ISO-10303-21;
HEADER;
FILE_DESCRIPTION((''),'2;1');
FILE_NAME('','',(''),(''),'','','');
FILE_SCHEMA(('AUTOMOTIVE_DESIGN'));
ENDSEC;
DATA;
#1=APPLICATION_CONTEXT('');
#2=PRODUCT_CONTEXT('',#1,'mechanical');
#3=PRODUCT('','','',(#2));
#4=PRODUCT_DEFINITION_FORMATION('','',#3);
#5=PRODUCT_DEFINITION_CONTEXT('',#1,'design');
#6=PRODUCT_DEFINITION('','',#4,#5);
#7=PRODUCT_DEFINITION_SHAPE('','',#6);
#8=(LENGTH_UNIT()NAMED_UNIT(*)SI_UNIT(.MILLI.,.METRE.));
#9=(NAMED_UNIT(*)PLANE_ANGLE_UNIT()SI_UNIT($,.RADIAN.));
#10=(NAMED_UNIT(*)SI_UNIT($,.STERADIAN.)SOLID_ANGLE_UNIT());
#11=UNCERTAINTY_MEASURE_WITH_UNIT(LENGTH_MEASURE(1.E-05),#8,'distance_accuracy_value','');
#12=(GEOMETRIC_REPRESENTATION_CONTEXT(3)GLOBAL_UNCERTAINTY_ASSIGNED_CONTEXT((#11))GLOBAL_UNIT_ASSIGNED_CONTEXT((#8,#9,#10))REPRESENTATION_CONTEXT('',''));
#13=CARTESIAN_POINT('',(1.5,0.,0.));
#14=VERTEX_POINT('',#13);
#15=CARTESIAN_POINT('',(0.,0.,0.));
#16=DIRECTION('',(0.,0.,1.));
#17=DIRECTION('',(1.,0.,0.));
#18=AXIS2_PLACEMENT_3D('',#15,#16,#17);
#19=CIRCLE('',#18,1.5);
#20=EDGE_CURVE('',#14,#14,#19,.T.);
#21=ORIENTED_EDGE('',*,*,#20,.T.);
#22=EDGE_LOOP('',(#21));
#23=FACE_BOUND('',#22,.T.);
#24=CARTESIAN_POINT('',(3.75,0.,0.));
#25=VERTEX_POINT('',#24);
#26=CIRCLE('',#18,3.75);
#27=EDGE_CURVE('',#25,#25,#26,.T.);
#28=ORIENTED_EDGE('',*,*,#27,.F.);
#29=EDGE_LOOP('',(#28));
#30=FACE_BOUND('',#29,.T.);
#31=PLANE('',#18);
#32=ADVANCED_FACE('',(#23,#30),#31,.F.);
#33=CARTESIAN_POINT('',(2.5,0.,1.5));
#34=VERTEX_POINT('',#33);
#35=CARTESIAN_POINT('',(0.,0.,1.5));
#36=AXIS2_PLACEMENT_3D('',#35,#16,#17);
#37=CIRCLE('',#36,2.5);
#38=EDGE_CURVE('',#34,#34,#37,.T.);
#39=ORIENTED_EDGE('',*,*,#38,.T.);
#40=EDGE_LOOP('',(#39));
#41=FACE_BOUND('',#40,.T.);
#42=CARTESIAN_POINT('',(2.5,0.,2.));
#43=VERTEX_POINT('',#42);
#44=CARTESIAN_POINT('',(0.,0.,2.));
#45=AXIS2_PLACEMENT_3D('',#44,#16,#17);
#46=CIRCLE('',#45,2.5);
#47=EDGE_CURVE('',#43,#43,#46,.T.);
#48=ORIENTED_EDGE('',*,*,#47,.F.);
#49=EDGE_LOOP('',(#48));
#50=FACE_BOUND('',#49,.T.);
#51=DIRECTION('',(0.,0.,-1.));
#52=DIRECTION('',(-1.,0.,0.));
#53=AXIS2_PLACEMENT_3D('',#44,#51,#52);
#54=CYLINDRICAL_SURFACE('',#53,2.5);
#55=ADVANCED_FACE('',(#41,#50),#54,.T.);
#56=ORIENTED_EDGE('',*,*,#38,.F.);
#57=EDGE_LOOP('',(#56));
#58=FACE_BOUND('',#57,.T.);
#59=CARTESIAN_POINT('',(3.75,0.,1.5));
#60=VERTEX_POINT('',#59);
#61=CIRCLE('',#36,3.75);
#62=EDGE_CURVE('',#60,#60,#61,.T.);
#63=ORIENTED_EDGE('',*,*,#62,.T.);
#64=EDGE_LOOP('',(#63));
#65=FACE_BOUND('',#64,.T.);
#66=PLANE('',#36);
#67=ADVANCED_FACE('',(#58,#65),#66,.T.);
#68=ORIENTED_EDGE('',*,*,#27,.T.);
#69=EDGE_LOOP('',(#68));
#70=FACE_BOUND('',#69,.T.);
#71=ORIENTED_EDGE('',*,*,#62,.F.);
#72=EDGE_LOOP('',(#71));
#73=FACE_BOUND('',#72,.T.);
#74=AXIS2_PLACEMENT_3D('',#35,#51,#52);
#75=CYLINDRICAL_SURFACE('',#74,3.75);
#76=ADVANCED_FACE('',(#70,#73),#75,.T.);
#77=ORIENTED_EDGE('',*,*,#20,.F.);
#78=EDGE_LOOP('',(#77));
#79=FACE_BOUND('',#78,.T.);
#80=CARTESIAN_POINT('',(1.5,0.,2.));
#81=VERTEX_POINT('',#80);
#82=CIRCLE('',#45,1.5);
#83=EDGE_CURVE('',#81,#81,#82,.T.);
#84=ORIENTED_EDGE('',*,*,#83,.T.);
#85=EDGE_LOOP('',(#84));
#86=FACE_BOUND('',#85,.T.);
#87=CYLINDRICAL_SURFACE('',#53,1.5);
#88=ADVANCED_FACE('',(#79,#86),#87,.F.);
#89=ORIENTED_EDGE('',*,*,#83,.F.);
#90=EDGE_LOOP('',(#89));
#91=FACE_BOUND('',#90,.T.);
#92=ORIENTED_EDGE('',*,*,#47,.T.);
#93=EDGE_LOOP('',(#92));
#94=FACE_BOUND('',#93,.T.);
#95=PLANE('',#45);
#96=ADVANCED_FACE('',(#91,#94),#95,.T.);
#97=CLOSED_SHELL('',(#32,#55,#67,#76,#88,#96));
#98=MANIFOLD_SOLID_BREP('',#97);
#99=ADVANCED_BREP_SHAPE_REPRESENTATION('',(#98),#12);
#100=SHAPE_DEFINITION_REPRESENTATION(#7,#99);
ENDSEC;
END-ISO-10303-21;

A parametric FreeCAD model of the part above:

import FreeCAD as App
import Part
import Sketcher

V = App.Vector
Q = App.Units.Quantity

doc = App.newDocument("Part")
params = doc.addObject("Spreadsheet::Sheet", "Params")
for row, (alias, value) in enumerate([
    ("sketch1_diameter", "5 mm"),
    ("sketch1_diameter2", "7.5 mm"),
    ("pad1_length", "1.5 mm"),
    ("sketch2_diameter", "5 mm"),
    ("sketch2_diameter2", "3 mm"),
    ("pad2_length", "2 mm"),
], start=1):
    params.set(f"A{row}", alias)
    params.set(f"B{row}", "=" + value)
    params.setAlias(f"B{row}", alias)

body = doc.addObject("PartDesign::Body", "Body")

# Sketch on XY plane
sketch1 = body.newObject("Sketcher::SketchObject", "Sketch")
sketch1.AttachmentSupport = (doc.getObject("XY_Plane"), [""])
sketch1.MapMode = "FlatFace"
sketch1.addGeometry([
    Part.Circle(V(0, 0, 0), V(0, 0, 1), 3.75),
    Part.Circle(V(0, 0, 0), V(0, 0, 1), 2.5),
], False)
sketch1.addConstraint([
    Sketcher.Constraint("Coincident", 0, 3, -1, 1),
    Sketcher.Constraint("Coincident", 1, 3, -1, 1),
    Sketcher.Constraint("Diameter", 1, Q("5 mm")),
    Sketcher.Constraint("Diameter", 0, Q("7.5 mm")),
])
sketch1.setExpression("Constraints[2]", "Params.sketch1_diameter")
sketch1.setExpression("Constraints[3]", "Params.sketch1_diameter2")
pad1 = body.newObject("PartDesign::Pad", "Pad")
pad1.Profile = sketch1
pad1.setExpression("Length", "Params.pad1_length")

# Sketch on XY plane
sketch2 = body.newObject("Sketcher::SketchObject", "Sketch001")
sketch2.AttachmentSupport = (doc.getObject("XY_Plane"), [""])
sketch2.MapMode = "FlatFace"
sketch2.addGeometry([
    Part.Circle(V(0, 0, 0), V(0, 0, 1), 2.5),
    Part.Circle(V(0, 0, 0), V(0, 0, 1), 1.5),
], False)
sketch2.addConstraint([
    Sketcher.Constraint("Coincident", 0, 3, -1, 1),
    Sketcher.Constraint("Coincident", 1, 3, -1, 1),
    Sketcher.Constraint("Diameter", 0, Q("5 mm")),
    Sketcher.Constraint("Diameter", 1, Q("3 mm")),
])
sketch2.setExpression("Constraints[2]", "Params.sketch2_diameter")
sketch2.setExpression("Constraints[3]", "Params.sketch2_diameter2")
pad2 = body.newObject("PartDesign::Pad", "Pad001")
pad2.Profile = sketch2
pad2.setExpression("Length", "Params.pad2_length")

doc.recompute()
